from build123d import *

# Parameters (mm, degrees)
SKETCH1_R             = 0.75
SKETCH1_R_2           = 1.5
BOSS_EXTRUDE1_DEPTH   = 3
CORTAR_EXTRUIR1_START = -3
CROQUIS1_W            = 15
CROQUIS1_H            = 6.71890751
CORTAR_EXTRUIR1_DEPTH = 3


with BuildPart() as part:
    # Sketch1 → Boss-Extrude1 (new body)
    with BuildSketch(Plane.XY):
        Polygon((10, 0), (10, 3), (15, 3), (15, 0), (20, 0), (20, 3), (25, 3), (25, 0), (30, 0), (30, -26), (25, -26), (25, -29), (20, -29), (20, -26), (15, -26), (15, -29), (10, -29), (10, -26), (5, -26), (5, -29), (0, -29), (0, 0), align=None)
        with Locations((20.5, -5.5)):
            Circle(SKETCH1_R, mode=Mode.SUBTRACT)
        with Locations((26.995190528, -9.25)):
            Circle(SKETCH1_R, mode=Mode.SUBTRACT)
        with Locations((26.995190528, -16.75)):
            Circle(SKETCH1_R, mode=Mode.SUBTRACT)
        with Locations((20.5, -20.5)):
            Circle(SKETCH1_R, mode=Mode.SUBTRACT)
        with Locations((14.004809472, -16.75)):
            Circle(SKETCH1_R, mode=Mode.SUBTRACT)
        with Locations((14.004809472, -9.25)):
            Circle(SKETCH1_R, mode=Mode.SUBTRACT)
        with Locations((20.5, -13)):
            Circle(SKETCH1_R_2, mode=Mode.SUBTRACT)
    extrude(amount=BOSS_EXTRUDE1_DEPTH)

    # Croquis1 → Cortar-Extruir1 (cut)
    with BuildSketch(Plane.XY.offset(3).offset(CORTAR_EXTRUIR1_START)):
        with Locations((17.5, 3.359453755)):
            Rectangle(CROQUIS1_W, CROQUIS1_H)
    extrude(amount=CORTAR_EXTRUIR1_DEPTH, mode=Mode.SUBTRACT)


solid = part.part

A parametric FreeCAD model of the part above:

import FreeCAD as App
import Part
import Sketcher

V = App.Vector
Q = App.Units.Quantity

doc = App.newDocument("Part")
body = doc.addObject("PartDesign::Body", "Body")

# Sketch on XY plane
sketch1 = doc.addObject("Sketcher::SketchObject", "Sketch")
body.addObject(sketch1)
sketch1.AttachmentSupport = (doc.XY_Plane, [""])
sketch1.MapMode = "FlatFace"
sketch1.addGeometry([
    Part.LineSegment(V(10, 3, 0), V(10, 0, 0)),  # 0
    Part.LineSegment(V(10, 0, 0), V(0, 0, 0)),  # 1
    Part.LineSegment(V(0, 0, 0), V(0, -29, 0)),  # 2
    Part.LineSegment(V(0, -29, 0), V(5, -29, 0)),  # 3
    Part.LineSegment(V(5, -29, 0), V(5, -26, 0)),  # 4
    Part.LineSegment(V(5, -26, 0), V(10, -26, 0)),  # 5
    Part.LineSegment(V(10, -26, 0), V(10, -29, 0)),  # 6
    Part.LineSegment(V(10, -29, 0), V(15, -29, 0)),  # 7
    Part.LineSegment(V(15, -29, 0), V(15, -26, 0)),  # 8
    Part.LineSegment(V(15, -26, 0), V(20, -26, 0)),  # 9
    Part.LineSegment(V(20, -26, 0), V(20, -29, 0)),  # 10
    Part.LineSegment(V(20, -29, 0), V(25, -29, 0)),  # 11
    Part.LineSegment(V(25, -29, 0), V(25, -26, 0)),  # 12
    Part.LineSegment(V(25, -26, 0), V(30, -26, 0)),  # 13
    Part.LineSegment(V(30, -26, 0), V(30, 0, 0)),  # 14
    Part.LineSegment(V(30, 0, 0), V(25, 0, 0)),  # 15
    Part.LineSegment(V(25, 0, 0), V(25, 3, 0)),  # 16
    Part.LineSegment(V(25, 3, 0), V(20, 3, 0)),  # 17
    Part.LineSegment(V(20, 3, 0), V(20, 0, 0)),  # 18
    Part.LineSegment(V(20, 0, 0), V(15, 0, 0)),  # 19
    Part.LineSegment(V(15, 0, 0), V(15, 3, 0)),  # 20
    Part.LineSegment(V(15, 3, 0), V(10, 3, 0)),  # 21
    Part.Circle(V(20.5, -20.5, 0), V(0, 0, 1), 0.8),  # 22
    Part.Circle(V(27, -16.8, 0), V(0, 0, 1), 0.8),  # 23
    Part.Circle(V(14, -16.8, 0), V(0, 0, 1), 0.8),  # 24
    Part.Circle(V(27, -9.2, 0), V(0, 0, 1), 0.8),  # 25
    Part.Circle(V(20.5, -13, 0), V(0, 0, 1), 1.5),  # 26
    Part.Circle(V(20.5, -5.5, 0), V(0, 0, 1), 0.8),  # 27
    Part.Circle(V(14, -9.2, 0), V(0, 0, 1), 0.8),  # 28
], False)
sketch1.addConstraint([
    Sketcher.Constraint("Coincident", 0, 2, 1, 1),
    Sketcher.Constraint("Coincident", 1, 2, 2, 1),
    Sketcher.Constraint("Coincident", 2, 2, 3, 1),
    Sketcher.Constraint("Coincident", 3, 2, 4, 1),
    Sketcher.Constraint("Coincident", 4, 2, 5, 1),
    Sketcher.Constraint("Coincident", 5, 2, 6, 1),
    Sketcher.Constraint("Coincident", 6, 2, 7, 1),
    Sketcher.Constraint("Coincident", 7, 2, 8, 1),
    Sketcher.Constraint("Coincident", 8, 2, 9, 1),
    Sketcher.Constraint("Coincident", 9, 2, 10, 1),
    Sketcher.Constraint("Coincident", 10, 2, 11, 1),
    Sketcher.Constraint("Coincident", 11, 2, 12, 1),
    Sketcher.Constraint("Coincident", 12, 2, 13, 1),
    Sketcher.Constraint("Coincident", 13, 2, 14, 1),
    Sketcher.Constraint("Coincident", 14, 2, 15, 1),
    Sketcher.Constraint("Coincident", 15, 2, 16, 1),
    Sketcher.Constraint("Coincident", 16, 2, 17, 1),
    Sketcher.Constraint("Coincident", 17, 2, 18, 1),
    Sketcher.Constraint("Coincident", 18, 2, 19, 1),
    Sketcher.Constraint("Coincident", 19, 2, 20, 1),
    Sketcher.Constraint("Coincident", 20, 2, 21, 1),
    Sketcher.Constraint("Coincident", 21, 2, 0, 1),
    Sketcher.Constraint("Vertical", 0),
    Sketcher.Constraint("Horizontal", 1),
    Sketcher.Constraint("Vertical", 2),
    Sketcher.Constraint("Horizontal", 3),
    Sketcher.Constraint("Vertical", 4),
    Sketcher.Constraint("Horizontal", 5),
    Sketcher.Constraint("Vertical", 6),
    Sketcher.Constraint("Horizontal", 7),
    Sketcher.Constraint("Vertical", 8),
    Sketcher.Constraint("Horizontal", 9),
    Sketcher.Constraint("Vertical", 10),
    Sketcher.Constraint("Horizontal", 11),
    Sketcher.Constraint("Vertical", 12),
    Sketcher.Constraint("Horizontal", 13),
    Sketcher.Constraint("Vertical", 14),
    Sketcher.Constraint("Horizontal", 15),
    Sketcher.Constraint("Vertical", 16),
    Sketcher.Constraint("Horizontal", 17),
    Sketcher.Constraint("Vertical", 18),
    Sketcher.Constraint("Horizontal", 19),
    Sketcher.Constraint("Vertical", 20),
    Sketcher.Constraint("Horizontal", 21),
    Sketcher.Constraint("Coincident", 1, 2, -1, 1),
    Sketcher.Constraint("Equal", 22, 23),
    Sketcher.Constraint("Equal", 23, 24),
    Sketcher.Constraint("Equal", 24, 25),
    Sketcher.Constraint("Equal", 25, 27),
    Sketcher.Constraint("Equal", 27, 28),
    Sketcher.Constraint("PointOnObject", 14, 2, -1),
    Sketcher.Constraint("PointOnObject", 18, 2, -1),
    Sketcher.Constraint("Horizontal", 23, 3, 24, 3),
    Sketcher.Constraint("Horizontal", 25, 3, 28, 3),
    Sketcher.Constraint("Horizontal", 3, 2, 6, 2),
    Sketcher.Constraint("Horizontal", 5, 2, 8, 2),
    Sketcher.Constraint("Horizontal", 7, 2, 10, 2),
    Sketcher.Constraint("Horizontal", 9, 2, 12, 2),
    Sketcher.Constraint("Horizontal", 17, 2, 20, 2),
    Sketcher.Constraint("Vertical", 23, 3, 25, 3),
    Sketcher.Constraint("Vertical", 22, 3, 26, 3),
    Sketcher.Constraint("Vertical", 26, 3, 27, 3),
    Sketcher.Constraint("Vertical", 24, 3, 28, 3),
    Sketcher.Constraint("Vertical", 0, 2, 5, 2),
    Sketcher.Constraint("Vertical", 12, 2, 15, 2),
    Sketcher.Constraint("Vertical", 10, 2, 17, 2),
    Sketcher.Constraint("Vertical", 8, 2, 19, 2),
    Sketcher.Constraint("Equal", 3, 5),
    Sketcher.Constraint("Equal", 5, 7),
    Sketcher.Constraint("Equal", 7, 9),
    Sketcher.Constraint("Equal", 9, 11),
    Sketcher.Constraint("Equal", 11, 13),
    Sketcher.Constraint("Equal", 0, 4),
    Sketcher.Constraint("Diameter", 26, Q("3 mm")),
    Sketcher.Constraint("Diameter", 22, Q("1.5 mm")),
    Sketcher.Constraint("DistanceX", 1, 2, 1, 1, Q("10 mm")),
    Sketcher.Constraint("DistanceY", 0, 2, 0, 1, Q("3 mm")),
    Sketcher.Constraint("DistanceY", 2, 2, 2, 1, Q("29 mm")),
    Sketcher.Constraint("DistanceY", 26, 3, -1, 1, Q("13 mm")),
    Sketcher.Constraint("DistanceY", 22, 3, 27, 3, Q("15 mm")),
    Sketcher.Constraint("DistanceX", -1, 1, 22, 3, Q("20.5 mm")),
    Sketcher.Constraint("DistanceY", 22, 3, -1, 1, Q("20.5 mm")),
    Sketcher.Constraint("DistanceY", 23, 3, 25, 3, Q("7.5 mm")),
    Sketcher.Constraint("DistanceY", 23, 3, -1, 1, Q("16.75 mm")),
    Sketcher.Constraint("DistanceX", -1, 1, 23, 3, Q("26.995191 mm")),
    Sketcher.Constraint("DistanceX", -1, 1, 24, 3, Q("14.004809 mm")),
])
pad1 = doc.addObject("PartDesign::Pad", "Pad")
body.addObject(pad1)
pad1.Profile = sketch1
pad1.Length = 3

# Sketch on XY plane
sketch2 = doc.addObject("Sketcher::SketchObject", "Sketch001")
body.addObject(sketch2)
sketch2.AttachmentSupport = (doc.XY_Plane, [""])
sketch2.MapMode = "FlatFace"
sketch2.addGeometry([
    Part.LineSegment(V(10, 7, 0), V(10, 0, 0)),
    Part.LineSegment(V(10, 0, 0), V(25, 0, 0)),
    Part.LineSegment(V(25, 0, 0), V(25, 7, 0)),
    Part.LineSegment(V(25, 7, 0), V(10, 7, 0)),
], False)
sketch2.addConstraint([
    Sketcher.Constraint("Coincident", 0, 2, 1, 1),
    Sketcher.Constraint("Coincident", 1, 2, 2, 1),
    Sketcher.Constraint("Coincident", 2, 2, 3, 1),
    Sketcher.Constraint("Coincident", 3, 2, 0, 1),
    Sketcher.Constraint("Vertical", 0),
    Sketcher.Constraint("Horizontal", 1),
    Sketcher.Constraint("Vertical", 2),
    Sketcher.Constraint("Horizontal", 3),
    Sketcher.Constraint("PointOnObject", 0, 2, -1),
    Sketcher.Constraint("DistanceX", 1, 1, 1, 2, Q("15 mm")),
    Sketcher.Constraint("DistanceX", -1, 1, 0, 2, Q("10 mm")),
    Sketcher.Constraint("DistanceY", 0, 2, 0, 1, Q("6.718908 mm")),
])
pocket1 = doc.addObject("PartDesign::Pocket", "Pocket")
body.addObject(pocket1)
pocket1.Profile = sketch2
pocket1.Length = 3
pocket1.Reversed = True

doc.recompute()
